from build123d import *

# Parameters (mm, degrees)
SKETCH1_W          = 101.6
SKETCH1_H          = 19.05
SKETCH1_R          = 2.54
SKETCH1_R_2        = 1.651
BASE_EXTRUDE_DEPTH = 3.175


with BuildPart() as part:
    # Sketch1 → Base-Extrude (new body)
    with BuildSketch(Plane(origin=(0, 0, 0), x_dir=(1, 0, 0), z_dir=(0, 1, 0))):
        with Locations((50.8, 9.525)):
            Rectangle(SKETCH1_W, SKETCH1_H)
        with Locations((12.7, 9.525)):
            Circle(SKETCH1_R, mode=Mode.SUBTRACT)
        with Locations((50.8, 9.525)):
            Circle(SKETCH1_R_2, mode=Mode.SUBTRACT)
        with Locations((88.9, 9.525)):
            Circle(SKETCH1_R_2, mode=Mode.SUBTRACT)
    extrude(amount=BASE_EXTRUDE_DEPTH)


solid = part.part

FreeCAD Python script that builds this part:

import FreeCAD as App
import Part
import Sketcher
Q = App.Units.Quantity


def add_polygon(sketch, points):
    """Adds a closed chain of lines whose ends are joined by coincident constraints."""
    first, n = sketch.GeometryCount, len(points)
    for a, b in zip(points, points[1:] + points[:1]):
        sketch.addGeometry(Part.LineSegment(App.Vector(*a, 0), App.Vector(*b, 0)), False)
    for i in range(n):
        sketch.addConstraint(Sketcher.Constraint("Coincident", first + i, 2, first + (i + 1) % n, 1))

doc = App.newDocument("Part")
body = doc.addObject("PartDesign::Body", "Body")

sketch1 = doc.addObject("Sketcher::SketchObject", "Sketch")
body.addObject(sketch1)
sketch1.AttachmentSupport = (doc.XZ_Plane, [""])
sketch1.MapMode = "FlatFace"
add_polygon(sketch1, [(0, -19.1), (0, 0), (101.6, 0), (101.6, -19.1)])
sketch1.addGeometry(Part.Circle(App.Vector(12.7, -9.5, 0), App.Vector(0, 0, 1), 2.5), False)
sketch1.addGeometry(Part.Circle(App.Vector(50.8, -9.5, 0), App.Vector(0, 0, 1), 1.7), False)
sketch1.addGeometry(Part.Circle(App.Vector(88.9, -9.5, 0), App.Vector(0, 0, 1), 1.7), False)
sketch1.addConstraint([
    Sketcher.Constraint("Vertical", 0),
    Sketcher.Constraint("Horizontal", 1),
    Sketcher.Constraint("Vertical", 2),
    Sketcher.Constraint("Horizontal", 3),
    Sketcher.Constraint("Coincident", 0, 2, -1, 1),
    Sketcher.Constraint("Equal", 5, 6),
    Sketcher.Constraint("Horizontal", 4, 3, 5, 3),
    Sketcher.Constraint("Horizontal", 5, 3, 6, 3),
    Sketcher.Constraint("Diameter", 4, Q("0.2 in")),
    Sketcher.Constraint("Diameter", 5, Q("0.13 in")),
    Sketcher.Constraint("DistanceX", 1, 1, 1, 2, Q("4 in")),
    Sketcher.Constraint("DistanceX", -1, 1, 5, 3, Q("2 in")),
    Sketcher.Constraint("DistanceX", 4, 3, 6, 3, Q("3 in")),
    Sketcher.Constraint("DistanceY", 0, 1, 0, 2, Q("0.75 in")),
    Sketcher.Constraint("DistanceX", -1, 1, 4, 3, Q("0.5 in")),
    Sketcher.Constraint("DistanceY", 4, 3, -1, 1, Q("0.375 in")),
])
pad1 = doc.addObject("PartDesign::Pad", "Pad")
body.addObject(pad1)
pad1.Profile = sketch1
pad1.Length = Q("0.125 in")
pad1.Reversed = True

doc.recompute()
